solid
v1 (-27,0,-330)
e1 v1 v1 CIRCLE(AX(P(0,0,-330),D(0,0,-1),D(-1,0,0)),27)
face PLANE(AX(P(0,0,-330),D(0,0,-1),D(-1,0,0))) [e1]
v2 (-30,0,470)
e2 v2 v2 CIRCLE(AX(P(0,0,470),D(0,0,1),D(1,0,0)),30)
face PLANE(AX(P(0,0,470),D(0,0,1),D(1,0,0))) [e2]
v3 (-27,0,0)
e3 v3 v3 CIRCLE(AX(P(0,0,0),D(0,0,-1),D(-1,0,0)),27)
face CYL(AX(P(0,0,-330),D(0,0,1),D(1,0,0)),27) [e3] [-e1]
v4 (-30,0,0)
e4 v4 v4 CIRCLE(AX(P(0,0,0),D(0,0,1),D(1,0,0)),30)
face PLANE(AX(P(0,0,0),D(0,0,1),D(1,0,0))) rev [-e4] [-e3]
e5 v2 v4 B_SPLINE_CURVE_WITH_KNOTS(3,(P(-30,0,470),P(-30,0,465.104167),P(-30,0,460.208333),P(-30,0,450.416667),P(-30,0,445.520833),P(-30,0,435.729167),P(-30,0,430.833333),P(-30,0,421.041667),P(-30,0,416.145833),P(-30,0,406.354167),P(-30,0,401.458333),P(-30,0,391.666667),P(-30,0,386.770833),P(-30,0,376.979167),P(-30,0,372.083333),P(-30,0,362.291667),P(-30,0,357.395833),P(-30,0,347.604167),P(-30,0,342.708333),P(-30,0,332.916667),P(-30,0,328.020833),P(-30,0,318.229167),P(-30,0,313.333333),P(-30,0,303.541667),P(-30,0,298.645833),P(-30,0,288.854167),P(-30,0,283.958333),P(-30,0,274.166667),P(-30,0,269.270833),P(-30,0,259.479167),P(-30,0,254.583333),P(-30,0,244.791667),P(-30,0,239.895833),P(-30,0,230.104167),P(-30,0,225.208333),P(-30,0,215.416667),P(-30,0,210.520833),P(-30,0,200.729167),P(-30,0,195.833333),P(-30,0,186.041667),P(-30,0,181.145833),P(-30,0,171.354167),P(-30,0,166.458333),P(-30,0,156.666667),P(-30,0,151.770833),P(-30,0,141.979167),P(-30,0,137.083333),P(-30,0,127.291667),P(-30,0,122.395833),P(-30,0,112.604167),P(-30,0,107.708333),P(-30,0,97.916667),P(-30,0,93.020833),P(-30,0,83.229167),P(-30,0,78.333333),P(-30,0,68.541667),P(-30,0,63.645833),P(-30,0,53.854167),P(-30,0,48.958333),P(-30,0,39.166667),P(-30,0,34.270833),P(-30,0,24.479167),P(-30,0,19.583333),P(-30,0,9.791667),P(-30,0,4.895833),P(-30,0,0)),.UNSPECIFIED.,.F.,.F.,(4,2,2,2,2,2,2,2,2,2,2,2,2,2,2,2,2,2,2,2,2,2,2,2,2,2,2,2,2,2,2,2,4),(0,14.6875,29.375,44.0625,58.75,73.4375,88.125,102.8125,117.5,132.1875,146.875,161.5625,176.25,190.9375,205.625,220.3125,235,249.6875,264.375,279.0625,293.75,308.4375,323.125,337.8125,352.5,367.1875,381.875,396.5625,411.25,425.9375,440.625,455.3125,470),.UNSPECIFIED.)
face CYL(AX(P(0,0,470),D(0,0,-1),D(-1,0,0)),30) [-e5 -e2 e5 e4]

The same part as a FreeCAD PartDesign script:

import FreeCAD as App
import Part
import Sketcher
from FreeCAD import Vector

doc = App.newDocument("Part")
body = doc.addObject("PartDesign::Body", "Body")

# Sketch on XY plane
sketch1 = body.newObject("Sketcher::SketchObject", "Sketch")
sketch1.AttachmentSupport = (doc.getObject("XY_Plane"), [""])
sketch1.MapMode = "FlatFace"
sketch1.addGeometry(Part.Circle(Vector(0, 0, 0), Vector(0, 0, 1), 30), False)
sketch1.addConstraint(Sketcher.Constraint("Coincident", 0, 3, -1, 1))
sketch1.addConstraint(Sketcher.Constraint("Diameter", 0, 60.0))
pad1 = body.newObject("PartDesign::Pad", "Pad")
pad1.Profile = sketch1
pad1.Length = 470

# Sketch on XY plane
sketch2 = body.newObject("Sketcher::SketchObject", "Sketch001")
sketch2.AttachmentSupport = (doc.getObject("XY_Plane"), [""])
sketch2.MapMode = "FlatFace"
sketch2.addGeometry(Part.Circle(Vector(0, 0, 0), Vector(0, 0, 1), 27), False)
sketch2.addConstraint(Sketcher.Constraint("Coincident", 0, 3, -1, 1))
sketch2.addConstraint(Sketcher.Constraint("Diameter", 0, 54.0))
pad2 = body.newObject("PartDesign::Pad", "Pad001")
pad2.Profile = sketch2
pad2.Length = 330
pad2.Reversed = True

doc.recompute()
